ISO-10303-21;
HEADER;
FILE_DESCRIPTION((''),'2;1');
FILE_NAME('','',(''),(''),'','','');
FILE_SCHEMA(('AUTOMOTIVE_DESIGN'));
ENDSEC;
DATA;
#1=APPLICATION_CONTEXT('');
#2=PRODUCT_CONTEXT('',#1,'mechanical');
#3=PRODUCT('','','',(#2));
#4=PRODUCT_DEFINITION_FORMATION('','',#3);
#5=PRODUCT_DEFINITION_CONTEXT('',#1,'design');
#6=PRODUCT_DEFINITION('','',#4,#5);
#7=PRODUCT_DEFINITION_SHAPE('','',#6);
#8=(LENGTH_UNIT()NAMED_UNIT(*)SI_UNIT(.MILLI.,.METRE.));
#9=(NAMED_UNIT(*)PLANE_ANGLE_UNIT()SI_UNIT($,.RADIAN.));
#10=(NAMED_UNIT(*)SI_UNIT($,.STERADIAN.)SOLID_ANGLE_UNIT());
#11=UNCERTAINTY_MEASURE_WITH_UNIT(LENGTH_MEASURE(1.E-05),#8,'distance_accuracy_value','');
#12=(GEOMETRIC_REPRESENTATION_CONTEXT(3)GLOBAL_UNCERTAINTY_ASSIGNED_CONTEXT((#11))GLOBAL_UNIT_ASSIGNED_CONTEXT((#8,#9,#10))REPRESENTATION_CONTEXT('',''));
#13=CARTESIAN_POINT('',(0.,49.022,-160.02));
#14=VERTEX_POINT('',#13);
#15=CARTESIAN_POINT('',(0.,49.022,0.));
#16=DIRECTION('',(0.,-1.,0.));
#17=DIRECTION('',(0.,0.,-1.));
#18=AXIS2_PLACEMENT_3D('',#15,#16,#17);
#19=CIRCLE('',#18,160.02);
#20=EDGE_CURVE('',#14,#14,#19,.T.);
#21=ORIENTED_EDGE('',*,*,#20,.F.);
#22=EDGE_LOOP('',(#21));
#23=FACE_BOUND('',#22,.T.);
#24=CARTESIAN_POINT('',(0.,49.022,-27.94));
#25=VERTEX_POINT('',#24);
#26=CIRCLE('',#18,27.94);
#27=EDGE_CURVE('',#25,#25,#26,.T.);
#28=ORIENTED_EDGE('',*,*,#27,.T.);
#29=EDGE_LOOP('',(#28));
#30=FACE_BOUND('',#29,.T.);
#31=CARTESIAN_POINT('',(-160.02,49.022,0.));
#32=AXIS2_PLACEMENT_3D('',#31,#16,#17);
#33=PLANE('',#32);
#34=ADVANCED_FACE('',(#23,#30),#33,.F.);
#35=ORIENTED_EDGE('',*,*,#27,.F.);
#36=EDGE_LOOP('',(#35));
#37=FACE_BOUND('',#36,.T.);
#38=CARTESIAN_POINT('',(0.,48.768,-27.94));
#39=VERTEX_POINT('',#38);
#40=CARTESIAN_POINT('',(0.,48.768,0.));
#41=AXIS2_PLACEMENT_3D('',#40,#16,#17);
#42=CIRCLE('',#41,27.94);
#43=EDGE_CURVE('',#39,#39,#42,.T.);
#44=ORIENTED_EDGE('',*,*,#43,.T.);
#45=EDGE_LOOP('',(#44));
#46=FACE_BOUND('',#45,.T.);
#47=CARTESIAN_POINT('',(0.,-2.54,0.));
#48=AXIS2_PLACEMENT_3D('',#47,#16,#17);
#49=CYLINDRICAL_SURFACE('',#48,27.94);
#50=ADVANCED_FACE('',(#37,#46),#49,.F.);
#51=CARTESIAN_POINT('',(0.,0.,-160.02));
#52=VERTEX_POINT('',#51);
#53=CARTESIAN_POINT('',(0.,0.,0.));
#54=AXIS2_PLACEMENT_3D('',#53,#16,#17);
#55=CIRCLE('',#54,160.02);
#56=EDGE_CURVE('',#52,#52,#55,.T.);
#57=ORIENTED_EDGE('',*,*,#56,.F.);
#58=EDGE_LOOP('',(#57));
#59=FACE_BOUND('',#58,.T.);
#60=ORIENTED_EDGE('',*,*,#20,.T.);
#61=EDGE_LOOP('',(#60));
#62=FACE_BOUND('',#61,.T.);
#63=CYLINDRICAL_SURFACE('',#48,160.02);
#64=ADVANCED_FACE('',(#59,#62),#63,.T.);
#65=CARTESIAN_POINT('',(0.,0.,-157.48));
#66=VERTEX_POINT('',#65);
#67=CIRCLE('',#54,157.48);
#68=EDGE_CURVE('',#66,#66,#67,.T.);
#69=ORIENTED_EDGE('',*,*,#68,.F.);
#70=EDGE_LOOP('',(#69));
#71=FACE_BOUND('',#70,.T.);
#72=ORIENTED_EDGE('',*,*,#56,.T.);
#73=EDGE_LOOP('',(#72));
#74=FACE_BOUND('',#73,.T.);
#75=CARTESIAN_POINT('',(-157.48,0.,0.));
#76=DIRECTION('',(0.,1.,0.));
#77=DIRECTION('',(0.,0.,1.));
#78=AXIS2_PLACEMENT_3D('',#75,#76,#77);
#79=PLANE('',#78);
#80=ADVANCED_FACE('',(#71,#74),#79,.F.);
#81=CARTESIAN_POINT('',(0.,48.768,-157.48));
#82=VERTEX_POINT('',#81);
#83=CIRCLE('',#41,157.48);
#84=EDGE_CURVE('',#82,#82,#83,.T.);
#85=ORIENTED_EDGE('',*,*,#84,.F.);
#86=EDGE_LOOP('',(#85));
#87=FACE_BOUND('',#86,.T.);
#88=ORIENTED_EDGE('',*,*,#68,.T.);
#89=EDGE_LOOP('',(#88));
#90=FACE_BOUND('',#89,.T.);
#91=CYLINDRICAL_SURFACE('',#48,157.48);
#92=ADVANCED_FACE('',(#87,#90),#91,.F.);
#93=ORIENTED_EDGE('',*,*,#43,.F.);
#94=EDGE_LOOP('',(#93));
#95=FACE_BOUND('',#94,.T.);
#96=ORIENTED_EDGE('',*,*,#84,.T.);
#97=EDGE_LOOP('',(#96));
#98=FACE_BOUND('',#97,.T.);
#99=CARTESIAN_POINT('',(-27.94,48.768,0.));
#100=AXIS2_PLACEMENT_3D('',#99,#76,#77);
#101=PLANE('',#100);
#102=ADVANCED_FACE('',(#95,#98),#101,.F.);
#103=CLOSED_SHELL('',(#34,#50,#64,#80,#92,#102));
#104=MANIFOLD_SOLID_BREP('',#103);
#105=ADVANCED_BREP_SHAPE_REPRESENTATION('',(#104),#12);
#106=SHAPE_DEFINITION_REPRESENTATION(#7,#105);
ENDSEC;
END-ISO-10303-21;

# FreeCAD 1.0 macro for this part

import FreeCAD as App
import Part
import Sketcher

V = App.Vector
Q = App.Units.Quantity


def add_polygon(sketch, points):
    """Adds a closed chain of lines whose ends are joined by coincident constraints."""
    first, n = sketch.GeometryCount, len(points)
    for a, b in zip(points, points[1:] + points[:1]):
        sketch.addGeometry(Part.LineSegment(App.Vector(*a, 0), App.Vector(*b, 0)), False)
    for i in range(n):
        sketch.addConstraint(Sketcher.Constraint("Coincident", first + i, 2, first + (i + 1) % n, 1))

doc = App.newDocument("Part")
params = doc.addObject("Spreadsheet::Sheet", "Params")
for row, (alias, value) in enumerate([
    ("sketch1_width", "0.1 in"),
    ("sketch1_width2", "5.1 in"),
    ("sketch1_height", "1.93 in"),
    ("sketch1_height2", "1.92 in"),
    ("revolution_angle", "360 deg"),
], start=1):
    params.set(f"A{row}", alias)
    params.set(f"B{row}", "=" + value)
    params.setAlias(f"B{row}", alias)

body = doc.addObject("PartDesign::Body", "Body")

sketch1 = body.newObject("Sketcher::SketchObject", "Sketch")
sketch1.AttachmentSupport = (doc.getObject("XY_Plane"), [""])
sketch1.MapMode = "FlatFace"
add_polygon(sketch1, [(-160.02, 49.02), (-160.02, 0), (-157.48, 0), (-157.48, 48.77), (-27.94, 48.77), (-27.94, 49.02)])
sketch1.addConstraint(Sketcher.Constraint("Vertical", 0))
sketch1.addConstraint(Sketcher.Constraint("Horizontal", 1))
sketch1.addConstraint(Sketcher.Constraint("Vertical", 2))
sketch1.addConstraint(Sketcher.Constraint("Horizontal", 3))
sketch1.addConstraint(Sketcher.Constraint("Vertical", 4))
sketch1.addConstraint(Sketcher.Constraint("Horizontal", 5))
sketch1.addConstraint(Sketcher.Constraint("PointOnObject", 0, 2, -1))
sketch1.addConstraint(Sketcher.Constraint("DistanceX", 1, 1, 1, 2, Q("0.1 in")))
sketch1.addConstraint(Sketcher.Constraint("DistanceX", 3, 1, 3, 2, Q("5.1 in")))
sketch1.addConstraint(Sketcher.Constraint("DistanceY", 0, 2, 0, 1, Q("1.93 in")))
sketch1.addConstraint(Sketcher.Constraint("DistanceY", 2, 1, 2, 2, Q("1.92 in")))
sketch1.addConstraint(Sketcher.Constraint("DistanceX", 0, 2, -1, 1, Q("6.3 in")))
sketch1.setExpression("Constraints[13]", "Params.sketch1_width")
sketch1.setExpression("Constraints[14]", "Params.sketch1_width2")
sketch1.setExpression("Constraints[15]", "Params.sketch1_height")
sketch1.setExpression("Constraints[16]", "Params.sketch1_height2")
revolution = body.newObject("PartDesign::Revolution", "Revolution")
revolution.Profile = sketch1
revolution.ReferenceAxis = (sketch1, ["V_Axis"])
revolution.setExpression("Angle", "Params.revolution_angle")

doc.recompute()
